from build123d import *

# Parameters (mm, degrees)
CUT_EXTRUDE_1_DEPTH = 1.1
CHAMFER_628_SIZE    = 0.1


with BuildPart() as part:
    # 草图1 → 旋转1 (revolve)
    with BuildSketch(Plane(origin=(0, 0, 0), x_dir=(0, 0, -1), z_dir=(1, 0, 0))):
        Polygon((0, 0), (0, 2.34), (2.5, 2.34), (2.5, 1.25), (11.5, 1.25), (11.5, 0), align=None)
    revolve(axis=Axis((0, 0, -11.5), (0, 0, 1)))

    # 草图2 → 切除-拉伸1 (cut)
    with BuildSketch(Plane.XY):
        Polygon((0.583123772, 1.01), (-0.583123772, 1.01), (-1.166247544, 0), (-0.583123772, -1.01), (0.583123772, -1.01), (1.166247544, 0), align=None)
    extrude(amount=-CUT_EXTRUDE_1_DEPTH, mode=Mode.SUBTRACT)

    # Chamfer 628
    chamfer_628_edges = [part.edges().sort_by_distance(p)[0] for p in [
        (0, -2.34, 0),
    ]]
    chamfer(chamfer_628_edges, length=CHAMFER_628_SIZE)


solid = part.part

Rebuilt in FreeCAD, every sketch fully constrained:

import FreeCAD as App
import Part
import Sketcher
Q = App.Units.Quantity


def edges_at(feature, points):
    """Names of the edges that pass closest to the given points."""
    edges = feature.Shape.Edges
    near = lambda p: min(range(len(edges)), key=lambda i: edges[i].distToShape(Part.Vertex(*p))[0])
    return sorted({f"Edge{near(p) + 1}" for p in points})

doc = App.newDocument("Part")
body = doc.addObject("PartDesign::Body", "Body")

sketch1 = body.newObject("Sketcher::SketchObject", "Sketch")
sketch1.AttachmentSupport = (doc.getObject("YZ_Plane"), [""])
sketch1.MapMode = "FlatFace"
sketch1.addGeometry(Part.LineSegment(App.Vector(2.3, 0, 0), App.Vector(0, 0, 0)), False)
sketch1.addGeometry(Part.LineSegment(App.Vector(0, 0, 0), App.Vector(0, -11.5, 0)), False)
sketch1.addGeometry(Part.LineSegment(App.Vector(0, -11.5, 0), App.Vector(1.2, -11.5, 0)), False)
sketch1.addGeometry(Part.LineSegment(App.Vector(1.2, -11.5, 0), App.Vector(1.2, -2.5, 0)), False)
sketch1.addGeometry(Part.LineSegment(App.Vector(1.2, -2.5, 0), App.Vector(2.3, -2.5, 0)), False)
sketch1.addGeometry(Part.LineSegment(App.Vector(2.3, -2.5, 0), App.Vector(2.3, 0, 0)), False)
sketch1.addConstraint(Sketcher.Constraint("Coincident", 0, 2, 1, 1))
sketch1.addConstraint(Sketcher.Constraint("Coincident", 1, 2, 2, 1))
sketch1.addConstraint(Sketcher.Constraint("Coincident", 2, 2, 3, 1))
sketch1.addConstraint(Sketcher.Constraint("Coincident", 3, 2, 4, 1))
sketch1.addConstraint(Sketcher.Constraint("Coincident", 4, 2, 5, 1))
sketch1.addConstraint(Sketcher.Constraint("Coincident", 5, 2, 0, 1))
sketch1.addConstraint(Sketcher.Constraint("Horizontal", 0))
sketch1.addConstraint(Sketcher.Constraint("Vertical", 1))
sketch1.addConstraint(Sketcher.Constraint("Horizontal", 2))
sketch1.addConstraint(Sketcher.Constraint("Vertical", 3))
sketch1.addConstraint(Sketcher.Constraint("Horizontal", 4))
sketch1.addConstraint(Sketcher.Constraint("Vertical", 5))
sketch1.addConstraint(Sketcher.Constraint("Coincident", 0, 2, -1, 1))
sketch1.addConstraint(Sketcher.Constraint("DistanceY", 3, 1, 3, 2, 9.0))
sketch1.addConstraint(Sketcher.Constraint("DistanceY", 1, 2, 1, 1, 11.5))
sketch1.addConstraint(Sketcher.Constraint("DistanceX", 0, 2, 0, 1, 2.34))
sketch1.addConstraint(Sketcher.Constraint("DistanceX", 2, 1, 2, 2, 1.25))
revolution = body.newObject("PartDesign::Revolution", "Revolution")
revolution.Profile = sketch1
revolution.ReferenceAxis = (sketch1, ["V_Axis"])
revolution.Angle = 360

sketch2 = body.newObject("Sketcher::SketchObject", "Sketch001")
sketch2.AttachmentSupport = (doc.getObject("XY_Plane"), [""])
sketch2.MapMode = "FlatFace"
sketch2.addGeometry(Part.LineSegment(App.Vector(0.6, 1, 0), App.Vector(-0.6, 1, 0)), False)
sketch2.addGeometry(Part.LineSegment(App.Vector(-0.6, 1, 0), App.Vector(-1.2, 0, 0)), False)
sketch2.addGeometry(Part.LineSegment(App.Vector(-1.2, 0, 0), App.Vector(-0.6, -1, 0)), False)
sketch2.addGeometry(Part.LineSegment(App.Vector(-0.6, -1, 0), App.Vector(0.6, -1, 0)), False)
sketch2.addGeometry(Part.LineSegment(App.Vector(0.6, -1, 0), App.Vector(1.2, 0, 0)), False)
sketch2.addGeometry(Part.LineSegment(App.Vector(1.2, 0, 0), App.Vector(0.6, 1, 0)), False)
sketch2.addConstraint(Sketcher.Constraint("Coincident", 0, 2, 1, 1))
sketch2.addConstraint(Sketcher.Constraint("Coincident", 1, 2, 2, 1))
sketch2.addConstraint(Sketcher.Constraint("Coincident", 2, 2, 3, 1))
sketch2.addConstraint(Sketcher.Constraint("Coincident", 3, 2, 4, 1))
sketch2.addConstraint(Sketcher.Constraint("Coincident", 4, 2, 5, 1))
sketch2.addConstraint(Sketcher.Constraint("Coincident", 5, 2, 0, 1))
sketch2.addConstraint(Sketcher.Constraint("Horizontal", 0))
sketch2.addConstraint(Sketcher.Constraint("Horizontal", 3))
sketch2.addConstraint(Sketcher.Constraint("Symmetric", 0, 2, 3, 2, -1, 1))
sketch2.addConstraint(Sketcher.Constraint("Symmetric", 1, 2, 4, 2, -1, 1))
sketch2.addConstraint(Sketcher.Constraint("PointOnObject", 1, 2, -1))
sketch2.addConstraint(Sketcher.Constraint("Parallel", 2, 5))
sketch2.addConstraint(Sketcher.Constraint("Vertical", 0, 2, 2, 2))
sketch2.addConstraint(Sketcher.Constraint("Angle", 1, Q("-120 deg")))
sketch2.addConstraint(Sketcher.Constraint("DistanceY", -1, 1, 0, 2, 1.01))
sketch2.addConstraint(Sketcher.Constraint("DistanceX", 0, 2, 0, 1, 1.166248))
pocket1 = body.newObject("PartDesign::Pocket", "Pocket")
pocket1.Profile = sketch2
pocket1.Length = 1.1
doc.recompute()

chamfer = body.newObject("PartDesign::Chamfer", "Chamfer")
chamfer.Base = (pocket1, edges_at(pocket1, [(0, -2.34, 0)]))
chamfer.Size = 0.1

doc.recompute()
